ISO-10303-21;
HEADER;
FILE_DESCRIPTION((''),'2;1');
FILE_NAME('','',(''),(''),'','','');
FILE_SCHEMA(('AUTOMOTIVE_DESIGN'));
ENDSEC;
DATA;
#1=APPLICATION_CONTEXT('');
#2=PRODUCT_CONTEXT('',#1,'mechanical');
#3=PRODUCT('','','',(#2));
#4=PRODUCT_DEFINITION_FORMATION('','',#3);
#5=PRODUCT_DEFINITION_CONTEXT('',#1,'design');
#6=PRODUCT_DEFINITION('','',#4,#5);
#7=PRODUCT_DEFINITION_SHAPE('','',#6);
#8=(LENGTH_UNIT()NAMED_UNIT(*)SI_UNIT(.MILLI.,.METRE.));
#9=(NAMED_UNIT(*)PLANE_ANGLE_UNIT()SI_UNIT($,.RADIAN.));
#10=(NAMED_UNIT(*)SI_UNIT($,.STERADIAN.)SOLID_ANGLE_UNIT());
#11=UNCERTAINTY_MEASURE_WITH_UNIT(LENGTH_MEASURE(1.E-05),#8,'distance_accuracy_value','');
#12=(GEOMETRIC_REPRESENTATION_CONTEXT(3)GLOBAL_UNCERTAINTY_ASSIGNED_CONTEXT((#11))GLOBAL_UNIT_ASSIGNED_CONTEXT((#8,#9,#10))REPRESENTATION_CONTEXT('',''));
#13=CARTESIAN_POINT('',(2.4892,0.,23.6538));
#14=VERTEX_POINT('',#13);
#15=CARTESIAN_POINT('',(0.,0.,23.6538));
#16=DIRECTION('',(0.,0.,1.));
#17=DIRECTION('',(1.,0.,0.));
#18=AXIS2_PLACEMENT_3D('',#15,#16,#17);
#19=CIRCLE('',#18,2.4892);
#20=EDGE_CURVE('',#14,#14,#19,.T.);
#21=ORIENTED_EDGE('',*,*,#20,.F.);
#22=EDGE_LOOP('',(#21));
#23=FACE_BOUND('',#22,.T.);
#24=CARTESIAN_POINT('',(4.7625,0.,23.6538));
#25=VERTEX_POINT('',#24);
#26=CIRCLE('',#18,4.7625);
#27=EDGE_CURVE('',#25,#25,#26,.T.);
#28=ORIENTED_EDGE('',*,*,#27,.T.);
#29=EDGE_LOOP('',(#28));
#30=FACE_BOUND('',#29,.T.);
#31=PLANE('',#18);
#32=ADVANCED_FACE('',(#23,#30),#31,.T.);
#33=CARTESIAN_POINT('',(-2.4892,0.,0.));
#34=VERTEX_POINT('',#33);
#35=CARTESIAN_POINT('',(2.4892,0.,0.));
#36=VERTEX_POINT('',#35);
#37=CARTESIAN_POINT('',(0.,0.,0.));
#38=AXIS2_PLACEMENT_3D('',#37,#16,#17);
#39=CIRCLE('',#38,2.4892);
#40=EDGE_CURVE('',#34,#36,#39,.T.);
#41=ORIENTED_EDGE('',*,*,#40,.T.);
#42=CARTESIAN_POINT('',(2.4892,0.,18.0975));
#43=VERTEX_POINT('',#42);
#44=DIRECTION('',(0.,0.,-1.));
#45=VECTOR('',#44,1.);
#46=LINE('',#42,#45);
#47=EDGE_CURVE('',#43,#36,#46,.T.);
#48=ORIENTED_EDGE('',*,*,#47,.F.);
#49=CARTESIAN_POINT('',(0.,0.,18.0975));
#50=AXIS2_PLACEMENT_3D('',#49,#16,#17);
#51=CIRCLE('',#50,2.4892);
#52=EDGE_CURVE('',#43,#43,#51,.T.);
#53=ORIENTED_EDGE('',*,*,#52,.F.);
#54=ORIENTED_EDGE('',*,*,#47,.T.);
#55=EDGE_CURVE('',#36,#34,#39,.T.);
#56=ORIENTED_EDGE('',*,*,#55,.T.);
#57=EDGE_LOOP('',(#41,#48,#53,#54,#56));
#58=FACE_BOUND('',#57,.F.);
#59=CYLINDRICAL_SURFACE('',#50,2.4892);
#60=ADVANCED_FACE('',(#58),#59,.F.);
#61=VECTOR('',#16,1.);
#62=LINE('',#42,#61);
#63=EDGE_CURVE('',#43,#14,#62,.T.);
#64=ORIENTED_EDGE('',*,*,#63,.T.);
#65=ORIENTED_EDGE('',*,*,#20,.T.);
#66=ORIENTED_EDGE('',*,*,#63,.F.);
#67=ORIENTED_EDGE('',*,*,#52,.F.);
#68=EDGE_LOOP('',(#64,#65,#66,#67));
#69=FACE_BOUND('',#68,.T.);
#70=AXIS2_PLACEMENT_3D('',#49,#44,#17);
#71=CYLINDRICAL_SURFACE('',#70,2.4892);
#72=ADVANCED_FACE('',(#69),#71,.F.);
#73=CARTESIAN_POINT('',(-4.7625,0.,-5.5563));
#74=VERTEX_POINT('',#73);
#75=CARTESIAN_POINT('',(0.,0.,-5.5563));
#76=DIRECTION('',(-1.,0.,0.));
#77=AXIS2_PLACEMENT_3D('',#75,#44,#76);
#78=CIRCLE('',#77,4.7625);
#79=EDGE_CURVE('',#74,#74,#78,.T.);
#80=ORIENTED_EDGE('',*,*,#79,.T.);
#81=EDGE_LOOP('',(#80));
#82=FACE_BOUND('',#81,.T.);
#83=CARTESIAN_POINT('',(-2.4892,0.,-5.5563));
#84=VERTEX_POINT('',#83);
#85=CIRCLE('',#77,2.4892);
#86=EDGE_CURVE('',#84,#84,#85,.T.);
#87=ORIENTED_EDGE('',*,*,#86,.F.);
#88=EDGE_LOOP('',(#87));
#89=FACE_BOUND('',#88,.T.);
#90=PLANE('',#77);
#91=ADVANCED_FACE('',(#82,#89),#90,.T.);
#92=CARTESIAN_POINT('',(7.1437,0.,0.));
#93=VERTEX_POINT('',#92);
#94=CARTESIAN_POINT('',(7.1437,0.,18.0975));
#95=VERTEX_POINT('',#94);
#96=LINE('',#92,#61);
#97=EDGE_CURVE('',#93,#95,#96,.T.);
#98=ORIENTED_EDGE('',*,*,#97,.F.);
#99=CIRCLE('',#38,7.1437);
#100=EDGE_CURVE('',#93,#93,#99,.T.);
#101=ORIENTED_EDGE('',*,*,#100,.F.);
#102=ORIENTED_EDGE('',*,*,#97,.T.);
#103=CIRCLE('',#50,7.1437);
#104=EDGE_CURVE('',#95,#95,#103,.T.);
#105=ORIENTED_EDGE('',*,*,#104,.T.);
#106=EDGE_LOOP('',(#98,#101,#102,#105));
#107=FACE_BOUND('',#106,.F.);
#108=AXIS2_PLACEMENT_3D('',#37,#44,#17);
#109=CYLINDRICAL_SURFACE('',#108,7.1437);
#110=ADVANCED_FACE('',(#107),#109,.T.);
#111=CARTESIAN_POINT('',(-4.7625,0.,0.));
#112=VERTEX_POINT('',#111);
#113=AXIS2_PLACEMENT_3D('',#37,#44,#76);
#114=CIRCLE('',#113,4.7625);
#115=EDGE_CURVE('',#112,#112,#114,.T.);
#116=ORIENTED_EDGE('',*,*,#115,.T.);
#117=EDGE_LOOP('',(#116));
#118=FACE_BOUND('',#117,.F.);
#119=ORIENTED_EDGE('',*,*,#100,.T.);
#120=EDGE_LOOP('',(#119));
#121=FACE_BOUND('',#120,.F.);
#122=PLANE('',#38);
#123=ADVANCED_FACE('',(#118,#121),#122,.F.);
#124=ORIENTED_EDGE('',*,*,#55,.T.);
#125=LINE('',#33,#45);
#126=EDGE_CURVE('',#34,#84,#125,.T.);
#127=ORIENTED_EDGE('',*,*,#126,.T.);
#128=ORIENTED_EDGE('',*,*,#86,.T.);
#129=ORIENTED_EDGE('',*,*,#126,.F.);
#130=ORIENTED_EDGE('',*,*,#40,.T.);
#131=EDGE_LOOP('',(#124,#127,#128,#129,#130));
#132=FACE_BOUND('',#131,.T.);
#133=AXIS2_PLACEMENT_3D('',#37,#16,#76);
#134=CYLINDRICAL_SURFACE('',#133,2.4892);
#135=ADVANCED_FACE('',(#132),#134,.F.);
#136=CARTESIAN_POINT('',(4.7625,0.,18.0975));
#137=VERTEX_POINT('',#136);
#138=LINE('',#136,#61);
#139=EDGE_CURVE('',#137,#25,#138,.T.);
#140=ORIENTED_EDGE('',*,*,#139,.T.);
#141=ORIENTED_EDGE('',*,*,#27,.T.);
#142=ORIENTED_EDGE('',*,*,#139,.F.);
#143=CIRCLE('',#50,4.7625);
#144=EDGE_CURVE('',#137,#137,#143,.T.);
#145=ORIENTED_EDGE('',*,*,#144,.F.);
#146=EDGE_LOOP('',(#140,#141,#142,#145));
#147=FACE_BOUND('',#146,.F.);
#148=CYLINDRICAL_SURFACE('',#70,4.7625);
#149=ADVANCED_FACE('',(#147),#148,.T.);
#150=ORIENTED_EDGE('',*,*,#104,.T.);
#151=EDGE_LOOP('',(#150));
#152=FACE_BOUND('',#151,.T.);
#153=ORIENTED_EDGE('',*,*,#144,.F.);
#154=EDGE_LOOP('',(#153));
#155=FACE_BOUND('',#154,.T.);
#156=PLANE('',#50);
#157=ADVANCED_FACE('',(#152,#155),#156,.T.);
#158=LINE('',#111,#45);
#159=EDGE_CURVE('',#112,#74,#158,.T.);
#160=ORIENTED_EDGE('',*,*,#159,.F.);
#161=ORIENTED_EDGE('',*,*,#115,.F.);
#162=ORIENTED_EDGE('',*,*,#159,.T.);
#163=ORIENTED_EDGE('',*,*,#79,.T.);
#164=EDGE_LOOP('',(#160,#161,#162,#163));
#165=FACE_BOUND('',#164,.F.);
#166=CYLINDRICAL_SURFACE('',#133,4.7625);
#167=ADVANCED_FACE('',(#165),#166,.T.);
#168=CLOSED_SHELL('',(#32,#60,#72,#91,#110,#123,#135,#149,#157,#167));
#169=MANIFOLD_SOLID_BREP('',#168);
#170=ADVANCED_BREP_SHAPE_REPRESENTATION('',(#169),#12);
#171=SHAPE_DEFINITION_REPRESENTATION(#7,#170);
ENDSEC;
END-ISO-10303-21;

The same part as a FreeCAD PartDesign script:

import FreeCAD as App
import Part
import Sketcher

V = App.Vector
Q = App.Units.Quantity

doc = App.newDocument("Part")
body = doc.addObject("PartDesign::Body", "Body")

# Sketch on XY plane
sketch1 = doc.addObject("Sketcher::SketchObject", "Sketch")
body.addObject(sketch1)
sketch1.AttachmentSupport = (doc.XY_Plane, [""])
sketch1.MapMode = "FlatFace"
sketch1.addGeometry(Part.Circle(V(0, 0, 0), V(0, 0, 1), 7.1437), False)
sketch1.addConstraint(Sketcher.Constraint("Coincident", 0, 3, -1, 1))
sketch1.addConstraint(Sketcher.Constraint("Diameter", 0, Q("0.5625 in")))
pad1 = doc.addObject("PartDesign::Pad", "Pad")
body.addObject(pad1)
pad1.Profile = sketch1
pad1.Length = Q("0.7125 in")

# Sketch on XY plane
sketch2 = doc.addObject("Sketcher::SketchObject", "Sketch001")
body.addObject(sketch2)
sketch2.AttachmentSupport = (doc.XY_Plane, [""])
sketch2.MapMode = "FlatFace"
sketch2.AttachmentOffset = App.Placement(V(0, 0, 0.7125 * 25.4), App.Rotation())
sketch2.addGeometry(Part.Circle(V(0, 0, 0), V(0, 0, 1), 2.4892), False)
sketch2.addConstraint(Sketcher.Constraint("Coincident", 0, 3, -1, 1))
sketch2.addConstraint(Sketcher.Constraint("Diameter", 0, Q("0.196 in")))
pocket1 = doc.addObject("PartDesign::Pocket", "Pocket")
body.addObject(pocket1)
pocket1.Profile = sketch2
pocket1.Type = "ThroughAll"

# Sketch on XY plane
sketch3 = doc.addObject("Sketcher::SketchObject", "Sketch002")
body.addObject(sketch3)
sketch3.AttachmentSupport = (doc.XY_Plane, [""])
sketch3.MapMode = "FlatFace"
sketch3.AttachmentOffset = App.Placement(V(0, 0, 0.7125 * 25.4), App.Rotation())
sketch3.addGeometry(Part.Circle(V(0, 0, 0), V(0, 0, 1), 4.7625), False)
sketch3.addGeometry(Part.Circle(V(0, 0, 0), V(0, 0, 1), 2.4892), False)
sketch3.addConstraint(Sketcher.Constraint("Coincident", 0, 3, -1, 1))
sketch3.addConstraint(Sketcher.Constraint("Coincident", 1, 3, -1, 1))
sketch3.addConstraint(Sketcher.Constraint("Diameter", 0, Q("0.375 in")))
sketch3.addConstraint(Sketcher.Constraint("Diameter", 1, Q("0.196 in")))
pad2 = doc.addObject("PartDesign::Pad", "Pad001")
body.addObject(pad2)
pad2.Profile = sketch3
pad2.Length = Q("0.218752 in")

# Sketch on XY plane
sketch4 = doc.addObject("Sketcher::SketchObject", "Sketch003")
body.addObject(sketch4)
sketch4.AttachmentSupport = (doc.XY_Plane, [""])
sketch4.MapMode = "FlatFace"
sketch4.addGeometry(Part.Circle(V(0, 0, 0), V(0, 0, 1), 4.7625), False)
sketch4.addGeometry(Part.Circle(V(0, 0, 0), V(0, 0, 1), 2.4892), False)
sketch4.addConstraint(Sketcher.Constraint("Coincident", 0, 3, -1, 1))
sketch4.addConstraint(Sketcher.Constraint("Coincident", 1, 3, -1, 1))
sketch4.addConstraint(Sketcher.Constraint("Diameter", 0, Q("0.375 in")))
sketch4.addConstraint(Sketcher.Constraint("Diameter", 1, Q("0.196 in")))
pad3 = doc.addObject("PartDesign::Pad", "Pad002")
body.addObject(pad3)
pad3.Profile = sketch4
pad3.Length = Q("0.218752 in")
pad3.Reversed = True

doc.recompute()
